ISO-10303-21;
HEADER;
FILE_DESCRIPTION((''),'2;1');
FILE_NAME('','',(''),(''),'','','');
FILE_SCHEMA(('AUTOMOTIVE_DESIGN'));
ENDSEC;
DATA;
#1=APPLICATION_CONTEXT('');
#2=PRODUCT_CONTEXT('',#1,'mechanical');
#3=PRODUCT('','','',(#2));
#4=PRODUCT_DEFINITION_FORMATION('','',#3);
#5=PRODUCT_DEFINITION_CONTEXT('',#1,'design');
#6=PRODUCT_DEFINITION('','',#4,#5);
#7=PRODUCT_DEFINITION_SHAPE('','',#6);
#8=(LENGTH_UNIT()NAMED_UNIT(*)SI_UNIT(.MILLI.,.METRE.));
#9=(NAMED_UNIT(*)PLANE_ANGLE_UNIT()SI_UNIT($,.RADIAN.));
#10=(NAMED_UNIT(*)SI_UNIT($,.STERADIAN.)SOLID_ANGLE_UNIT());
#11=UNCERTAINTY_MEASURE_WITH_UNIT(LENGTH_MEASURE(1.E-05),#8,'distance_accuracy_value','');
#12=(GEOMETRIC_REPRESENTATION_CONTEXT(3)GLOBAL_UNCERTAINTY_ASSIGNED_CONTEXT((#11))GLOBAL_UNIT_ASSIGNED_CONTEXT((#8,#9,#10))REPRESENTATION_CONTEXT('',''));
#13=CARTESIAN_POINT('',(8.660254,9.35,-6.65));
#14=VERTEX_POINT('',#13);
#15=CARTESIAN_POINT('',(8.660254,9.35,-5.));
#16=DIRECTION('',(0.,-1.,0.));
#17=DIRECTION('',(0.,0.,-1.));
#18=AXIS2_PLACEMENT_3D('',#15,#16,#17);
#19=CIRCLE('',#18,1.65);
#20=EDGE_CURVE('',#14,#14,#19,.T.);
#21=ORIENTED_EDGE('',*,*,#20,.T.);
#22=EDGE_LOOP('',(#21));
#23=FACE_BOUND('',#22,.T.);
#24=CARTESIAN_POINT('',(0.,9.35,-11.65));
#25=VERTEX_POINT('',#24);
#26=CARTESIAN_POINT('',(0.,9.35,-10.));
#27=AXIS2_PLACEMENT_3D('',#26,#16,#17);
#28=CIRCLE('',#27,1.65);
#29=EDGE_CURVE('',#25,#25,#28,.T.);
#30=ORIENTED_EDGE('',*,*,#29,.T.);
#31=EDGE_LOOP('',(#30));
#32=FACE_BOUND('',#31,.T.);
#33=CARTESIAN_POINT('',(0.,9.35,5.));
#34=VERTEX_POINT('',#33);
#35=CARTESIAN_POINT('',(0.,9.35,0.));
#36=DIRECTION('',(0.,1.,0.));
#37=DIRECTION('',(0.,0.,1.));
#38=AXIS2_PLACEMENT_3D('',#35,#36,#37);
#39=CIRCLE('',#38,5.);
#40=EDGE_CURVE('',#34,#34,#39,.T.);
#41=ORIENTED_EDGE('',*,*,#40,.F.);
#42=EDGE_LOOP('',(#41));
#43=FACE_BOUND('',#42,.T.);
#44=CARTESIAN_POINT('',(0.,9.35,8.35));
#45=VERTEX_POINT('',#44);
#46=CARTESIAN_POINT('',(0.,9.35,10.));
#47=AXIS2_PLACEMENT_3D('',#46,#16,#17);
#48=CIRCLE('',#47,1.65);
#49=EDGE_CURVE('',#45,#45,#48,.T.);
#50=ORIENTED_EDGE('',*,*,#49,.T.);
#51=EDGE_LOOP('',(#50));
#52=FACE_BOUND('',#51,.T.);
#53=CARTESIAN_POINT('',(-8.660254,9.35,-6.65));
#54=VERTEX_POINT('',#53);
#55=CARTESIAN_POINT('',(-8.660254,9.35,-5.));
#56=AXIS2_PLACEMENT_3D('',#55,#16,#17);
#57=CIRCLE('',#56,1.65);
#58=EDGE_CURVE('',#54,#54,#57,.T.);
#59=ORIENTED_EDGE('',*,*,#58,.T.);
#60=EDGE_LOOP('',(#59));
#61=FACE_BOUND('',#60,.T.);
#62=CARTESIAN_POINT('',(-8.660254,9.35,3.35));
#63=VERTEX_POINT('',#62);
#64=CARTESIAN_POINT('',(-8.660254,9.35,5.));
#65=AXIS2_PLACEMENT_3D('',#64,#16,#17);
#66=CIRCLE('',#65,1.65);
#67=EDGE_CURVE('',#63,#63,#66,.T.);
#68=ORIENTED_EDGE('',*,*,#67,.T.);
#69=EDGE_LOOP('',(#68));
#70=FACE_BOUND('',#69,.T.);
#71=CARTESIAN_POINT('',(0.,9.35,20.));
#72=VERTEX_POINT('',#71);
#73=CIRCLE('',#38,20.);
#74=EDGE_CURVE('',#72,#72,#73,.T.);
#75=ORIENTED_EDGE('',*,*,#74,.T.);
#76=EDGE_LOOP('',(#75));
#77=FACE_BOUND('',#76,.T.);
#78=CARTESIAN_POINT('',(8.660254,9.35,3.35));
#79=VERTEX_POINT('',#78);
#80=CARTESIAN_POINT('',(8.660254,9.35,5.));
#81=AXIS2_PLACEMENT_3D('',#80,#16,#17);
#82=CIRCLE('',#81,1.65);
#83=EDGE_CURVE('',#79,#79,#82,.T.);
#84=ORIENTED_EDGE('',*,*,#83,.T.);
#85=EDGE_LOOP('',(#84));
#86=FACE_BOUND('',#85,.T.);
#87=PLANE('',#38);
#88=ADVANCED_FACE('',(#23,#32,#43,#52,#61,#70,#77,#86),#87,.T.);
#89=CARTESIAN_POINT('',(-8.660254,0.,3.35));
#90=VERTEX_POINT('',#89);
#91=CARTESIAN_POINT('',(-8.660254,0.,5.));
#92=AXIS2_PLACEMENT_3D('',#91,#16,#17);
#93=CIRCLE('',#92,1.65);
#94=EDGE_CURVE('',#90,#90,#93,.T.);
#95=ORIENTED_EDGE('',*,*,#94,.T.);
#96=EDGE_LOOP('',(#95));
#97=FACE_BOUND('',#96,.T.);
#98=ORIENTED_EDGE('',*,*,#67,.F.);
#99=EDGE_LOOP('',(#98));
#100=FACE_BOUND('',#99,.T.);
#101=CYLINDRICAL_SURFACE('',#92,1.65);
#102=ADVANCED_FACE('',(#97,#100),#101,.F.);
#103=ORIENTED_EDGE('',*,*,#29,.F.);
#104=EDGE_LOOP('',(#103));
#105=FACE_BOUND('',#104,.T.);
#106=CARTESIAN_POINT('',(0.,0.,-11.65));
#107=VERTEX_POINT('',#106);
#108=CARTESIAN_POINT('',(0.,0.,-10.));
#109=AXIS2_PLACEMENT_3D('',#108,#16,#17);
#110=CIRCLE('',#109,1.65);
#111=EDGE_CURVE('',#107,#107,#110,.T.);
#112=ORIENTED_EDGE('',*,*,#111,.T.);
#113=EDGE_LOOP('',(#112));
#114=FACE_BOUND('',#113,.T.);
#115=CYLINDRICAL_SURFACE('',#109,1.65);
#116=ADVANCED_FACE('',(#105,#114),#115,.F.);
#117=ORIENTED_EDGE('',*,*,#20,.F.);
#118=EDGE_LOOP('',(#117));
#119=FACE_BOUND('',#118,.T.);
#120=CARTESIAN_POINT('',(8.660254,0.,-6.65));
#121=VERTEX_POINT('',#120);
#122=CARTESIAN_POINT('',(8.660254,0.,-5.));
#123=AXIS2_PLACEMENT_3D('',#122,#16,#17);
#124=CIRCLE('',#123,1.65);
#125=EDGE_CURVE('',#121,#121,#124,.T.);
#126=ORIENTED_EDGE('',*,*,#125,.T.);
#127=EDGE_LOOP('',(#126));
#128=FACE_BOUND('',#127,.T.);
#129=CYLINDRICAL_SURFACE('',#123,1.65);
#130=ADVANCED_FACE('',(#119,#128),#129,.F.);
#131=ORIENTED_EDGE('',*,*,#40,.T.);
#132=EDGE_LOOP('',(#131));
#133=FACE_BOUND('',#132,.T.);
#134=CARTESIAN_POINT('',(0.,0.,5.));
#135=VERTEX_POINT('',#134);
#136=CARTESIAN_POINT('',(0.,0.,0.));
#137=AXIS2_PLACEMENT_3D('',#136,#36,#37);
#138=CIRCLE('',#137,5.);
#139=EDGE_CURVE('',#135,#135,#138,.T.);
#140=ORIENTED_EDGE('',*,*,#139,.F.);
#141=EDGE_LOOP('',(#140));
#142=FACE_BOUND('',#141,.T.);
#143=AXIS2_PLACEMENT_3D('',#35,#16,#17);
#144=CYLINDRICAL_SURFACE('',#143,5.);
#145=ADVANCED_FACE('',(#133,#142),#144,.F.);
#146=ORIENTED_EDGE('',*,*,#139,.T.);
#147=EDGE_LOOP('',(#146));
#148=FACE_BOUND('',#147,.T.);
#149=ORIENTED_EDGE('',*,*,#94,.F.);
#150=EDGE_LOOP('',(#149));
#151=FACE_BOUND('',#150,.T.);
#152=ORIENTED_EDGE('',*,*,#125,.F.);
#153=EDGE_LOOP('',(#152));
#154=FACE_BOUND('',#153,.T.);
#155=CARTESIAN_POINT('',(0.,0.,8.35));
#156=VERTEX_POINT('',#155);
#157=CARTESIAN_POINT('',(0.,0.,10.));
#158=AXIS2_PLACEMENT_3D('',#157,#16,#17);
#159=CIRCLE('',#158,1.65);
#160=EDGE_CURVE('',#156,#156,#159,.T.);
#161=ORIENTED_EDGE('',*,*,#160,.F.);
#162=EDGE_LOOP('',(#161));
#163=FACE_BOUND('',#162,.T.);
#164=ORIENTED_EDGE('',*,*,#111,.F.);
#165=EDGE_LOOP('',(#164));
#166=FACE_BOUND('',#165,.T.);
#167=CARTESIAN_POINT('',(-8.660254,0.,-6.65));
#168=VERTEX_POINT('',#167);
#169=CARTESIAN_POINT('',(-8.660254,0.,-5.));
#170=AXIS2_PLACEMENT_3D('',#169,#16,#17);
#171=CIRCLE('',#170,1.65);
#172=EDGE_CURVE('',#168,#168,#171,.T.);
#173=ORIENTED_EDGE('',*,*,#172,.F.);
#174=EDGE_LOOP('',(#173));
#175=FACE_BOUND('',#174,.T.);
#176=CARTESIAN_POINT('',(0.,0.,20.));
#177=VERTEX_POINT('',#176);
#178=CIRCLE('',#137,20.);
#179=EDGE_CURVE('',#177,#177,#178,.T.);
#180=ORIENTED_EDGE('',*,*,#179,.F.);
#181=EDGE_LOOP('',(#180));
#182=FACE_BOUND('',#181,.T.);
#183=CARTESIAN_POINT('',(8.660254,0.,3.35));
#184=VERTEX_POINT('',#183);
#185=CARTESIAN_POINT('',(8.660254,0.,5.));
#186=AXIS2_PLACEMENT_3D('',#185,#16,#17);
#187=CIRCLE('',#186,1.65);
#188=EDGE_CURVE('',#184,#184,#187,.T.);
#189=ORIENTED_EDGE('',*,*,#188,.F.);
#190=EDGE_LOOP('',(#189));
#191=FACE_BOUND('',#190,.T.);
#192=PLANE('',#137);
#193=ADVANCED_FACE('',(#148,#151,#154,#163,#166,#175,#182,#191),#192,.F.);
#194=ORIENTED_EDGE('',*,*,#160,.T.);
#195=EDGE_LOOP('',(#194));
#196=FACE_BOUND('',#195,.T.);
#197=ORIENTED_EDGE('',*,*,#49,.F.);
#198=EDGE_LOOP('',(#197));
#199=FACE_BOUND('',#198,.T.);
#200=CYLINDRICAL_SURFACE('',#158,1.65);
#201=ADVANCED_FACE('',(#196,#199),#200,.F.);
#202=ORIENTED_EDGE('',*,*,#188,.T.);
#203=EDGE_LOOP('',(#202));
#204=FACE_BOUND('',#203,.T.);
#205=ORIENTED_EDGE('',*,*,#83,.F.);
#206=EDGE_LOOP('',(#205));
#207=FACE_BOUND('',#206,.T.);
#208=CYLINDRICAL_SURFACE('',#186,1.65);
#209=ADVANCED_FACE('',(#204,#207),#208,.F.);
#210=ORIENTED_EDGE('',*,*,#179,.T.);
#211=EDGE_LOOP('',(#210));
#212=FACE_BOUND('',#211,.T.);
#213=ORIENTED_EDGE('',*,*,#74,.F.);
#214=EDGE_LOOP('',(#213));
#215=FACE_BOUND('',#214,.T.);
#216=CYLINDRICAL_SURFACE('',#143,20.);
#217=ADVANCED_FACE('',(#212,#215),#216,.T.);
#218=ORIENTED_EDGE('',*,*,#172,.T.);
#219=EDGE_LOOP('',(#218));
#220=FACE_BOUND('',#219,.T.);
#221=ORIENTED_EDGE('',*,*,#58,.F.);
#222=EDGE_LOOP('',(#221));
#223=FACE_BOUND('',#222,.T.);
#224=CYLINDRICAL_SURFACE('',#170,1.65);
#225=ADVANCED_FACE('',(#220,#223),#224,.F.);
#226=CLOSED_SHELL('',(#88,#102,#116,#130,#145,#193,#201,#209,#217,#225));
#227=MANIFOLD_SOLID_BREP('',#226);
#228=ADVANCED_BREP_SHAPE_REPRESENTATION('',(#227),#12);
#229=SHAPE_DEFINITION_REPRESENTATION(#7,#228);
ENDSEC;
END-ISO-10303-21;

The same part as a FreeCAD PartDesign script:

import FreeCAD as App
import Part
import Sketcher

doc = App.newDocument("Part")
body = doc.addObject("PartDesign::Body", "Body")

# Sketch on XZ plane
sketch1 = doc.addObject("Sketcher::SketchObject", "Sketch")
body.addObject(sketch1)
sketch1.AttachmentSupport = (doc.XZ_Plane, [""])
sketch1.MapMode = "FlatFace"
sketch1.addGeometry(Part.Circle(App.Vector(0, 0, 0), App.Vector(0, 0, 1), 20), False)
sketch1.addGeometry(Part.Circle(App.Vector(-8.7, -5, 0), App.Vector(0, 0, 1), 1), False)
sketch1.addGeometry(Part.Circle(App.Vector(0, -10, 0), App.Vector(0, 0, 1), 1), False)
sketch1.addGeometry(Part.Circle(App.Vector(-8.7, 5, 0), App.Vector(0, 0, 1), 1), False)
sketch1.addGeometry(Part.Circle(App.Vector(8.7, -5, 0), App.Vector(0, 0, 1), 1), False)
sketch1.addGeometry(Part.Circle(App.Vector(0, 0, 0), App.Vector(0, 0, 1), 5), False)
sketch1.addGeometry(Part.Circle(App.Vector(0, 10, 0), App.Vector(0, 0, 1), 1), False)
sketch1.addGeometry(Part.Circle(App.Vector(8.7, 5, 0), App.Vector(0, 0, 1), 1), False)
sketch1.addConstraint(Sketcher.Constraint("Coincident", 0, 3, -1, 1))
sketch1.addConstraint(Sketcher.Constraint("Coincident", 5, 3, -1, 1))
sketch1.addConstraint(Sketcher.Constraint("Equal", 1, 2))
sketch1.addConstraint(Sketcher.Constraint("Equal", 2, 3))
sketch1.addConstraint(Sketcher.Constraint("Equal", 3, 4))
sketch1.addConstraint(Sketcher.Constraint("Equal", 4, 6))
sketch1.addConstraint(Sketcher.Constraint("Equal", 6, 7))
sketch1.addConstraint(Sketcher.Constraint("Symmetric", 3, 3, 4, 3, -1, 1))
sketch1.addConstraint(Sketcher.Constraint("Symmetric", 2, 3, 6, 3, -1, 1))
sketch1.addConstraint(Sketcher.Constraint("Symmetric", 1, 3, 7, 3, -1, 1))
sketch1.addConstraint(Sketcher.Constraint("Symmetric", 1, 3, 4, 3, -2))
sketch1.addConstraint(Sketcher.Constraint("PointOnObject", 2, 3, -2))
sketch1.addConstraint(Sketcher.Constraint("Diameter", 0, 40.0))
sketch1.addConstraint(Sketcher.Constraint("Diameter", 1, 2.0))
sketch1.addConstraint(Sketcher.Constraint("Diameter", 5, 10.0))
sketch1.addConstraint(Sketcher.Constraint("DistanceY", 1, 3, -1, 1, 5.0))
sketch1.addConstraint(Sketcher.Constraint("DistanceY", 2, 3, -1, 1, 10.0))
sketch1.addConstraint(Sketcher.Constraint("DistanceX", 1, 3, 4, 3, 17.320508))
pad1 = doc.addObject("PartDesign::Pad", "Pad")
body.addObject(pad1)
pad1.Profile = sketch1
pad1.Length = 9.35
pad1.Reversed = True

# Sketch on XZ plane
sketch2 = doc.addObject("Sketcher::SketchObject", "Sketch001")
body.addObject(sketch2)
sketch2.AttachmentSupport = (doc.XZ_Plane, [""])
sketch2.MapMode = "FlatFace"
sketch2.addGeometry(Part.Circle(App.Vector(-8.7, 5, 0), App.Vector(0, 0, 1), 1.6), False)
sketch2.addGeometry(Part.Circle(App.Vector(0, 10, 0), App.Vector(0, 0, 1), 1.6), False)
sketch2.addGeometry(Part.Circle(App.Vector(8.7, 5, 0), App.Vector(0, 0, 1), 1.6), False)
sketch2.addGeometry(Part.Circle(App.Vector(8.7, -5, 0), App.Vector(0, 0, 1), 1.6), False)
sketch2.addGeometry(Part.Circle(App.Vector(0, -10, 0), App.Vector(0, 0, 1), 1.6), False)
sketch2.addGeometry(Part.Circle(App.Vector(-8.7, -5, 0), App.Vector(0, 0, 1), 1.6), False)
sketch2.addConstraint(Sketcher.Constraint("Equal", 0, 1))
sketch2.addConstraint(Sketcher.Constraint("Equal", 1, 2))
sketch2.addConstraint(Sketcher.Constraint("Equal", 2, 3))
sketch2.addConstraint(Sketcher.Constraint("Equal", 3, 4))
sketch2.addConstraint(Sketcher.Constraint("Equal", 4, 5))
sketch2.addConstraint(Sketcher.Constraint("Symmetric", 0, 3, 3, 3, -1, 1))
sketch2.addConstraint(Sketcher.Constraint("Symmetric", 1, 3, 4, 3, -1, 1))
sketch2.addConstraint(Sketcher.Constraint("Symmetric", 2, 3, 5, 3, -1, 1))
sketch2.addConstraint(Sketcher.Constraint("Symmetric", 0, 3, 2, 3, -2))
sketch2.addConstraint(Sketcher.Constraint("PointOnObject", 1, 3, -2))
sketch2.addConstraint(Sketcher.Constraint("Diameter", 0, 3.3))
sketch2.addConstraint(Sketcher.Constraint("DistanceY", -1, 1, 0, 3, 5.0))
sketch2.addConstraint(Sketcher.Constraint("DistanceY", -1, 1, 1, 3, 10.0))
sketch2.addConstraint(Sketcher.Constraint("DistanceX", 0, 3, 2, 3, 17.320508))
doc.recompute()
hole = doc.addObject("PartDesign::Hole", "Hole")
body.addObject(hole)
hole.Profile = sketch2
hole.ThreadType = "None"
hole.Diameter = 3.3
hole.DepthType = "ThroughAll"

doc.recompute()
